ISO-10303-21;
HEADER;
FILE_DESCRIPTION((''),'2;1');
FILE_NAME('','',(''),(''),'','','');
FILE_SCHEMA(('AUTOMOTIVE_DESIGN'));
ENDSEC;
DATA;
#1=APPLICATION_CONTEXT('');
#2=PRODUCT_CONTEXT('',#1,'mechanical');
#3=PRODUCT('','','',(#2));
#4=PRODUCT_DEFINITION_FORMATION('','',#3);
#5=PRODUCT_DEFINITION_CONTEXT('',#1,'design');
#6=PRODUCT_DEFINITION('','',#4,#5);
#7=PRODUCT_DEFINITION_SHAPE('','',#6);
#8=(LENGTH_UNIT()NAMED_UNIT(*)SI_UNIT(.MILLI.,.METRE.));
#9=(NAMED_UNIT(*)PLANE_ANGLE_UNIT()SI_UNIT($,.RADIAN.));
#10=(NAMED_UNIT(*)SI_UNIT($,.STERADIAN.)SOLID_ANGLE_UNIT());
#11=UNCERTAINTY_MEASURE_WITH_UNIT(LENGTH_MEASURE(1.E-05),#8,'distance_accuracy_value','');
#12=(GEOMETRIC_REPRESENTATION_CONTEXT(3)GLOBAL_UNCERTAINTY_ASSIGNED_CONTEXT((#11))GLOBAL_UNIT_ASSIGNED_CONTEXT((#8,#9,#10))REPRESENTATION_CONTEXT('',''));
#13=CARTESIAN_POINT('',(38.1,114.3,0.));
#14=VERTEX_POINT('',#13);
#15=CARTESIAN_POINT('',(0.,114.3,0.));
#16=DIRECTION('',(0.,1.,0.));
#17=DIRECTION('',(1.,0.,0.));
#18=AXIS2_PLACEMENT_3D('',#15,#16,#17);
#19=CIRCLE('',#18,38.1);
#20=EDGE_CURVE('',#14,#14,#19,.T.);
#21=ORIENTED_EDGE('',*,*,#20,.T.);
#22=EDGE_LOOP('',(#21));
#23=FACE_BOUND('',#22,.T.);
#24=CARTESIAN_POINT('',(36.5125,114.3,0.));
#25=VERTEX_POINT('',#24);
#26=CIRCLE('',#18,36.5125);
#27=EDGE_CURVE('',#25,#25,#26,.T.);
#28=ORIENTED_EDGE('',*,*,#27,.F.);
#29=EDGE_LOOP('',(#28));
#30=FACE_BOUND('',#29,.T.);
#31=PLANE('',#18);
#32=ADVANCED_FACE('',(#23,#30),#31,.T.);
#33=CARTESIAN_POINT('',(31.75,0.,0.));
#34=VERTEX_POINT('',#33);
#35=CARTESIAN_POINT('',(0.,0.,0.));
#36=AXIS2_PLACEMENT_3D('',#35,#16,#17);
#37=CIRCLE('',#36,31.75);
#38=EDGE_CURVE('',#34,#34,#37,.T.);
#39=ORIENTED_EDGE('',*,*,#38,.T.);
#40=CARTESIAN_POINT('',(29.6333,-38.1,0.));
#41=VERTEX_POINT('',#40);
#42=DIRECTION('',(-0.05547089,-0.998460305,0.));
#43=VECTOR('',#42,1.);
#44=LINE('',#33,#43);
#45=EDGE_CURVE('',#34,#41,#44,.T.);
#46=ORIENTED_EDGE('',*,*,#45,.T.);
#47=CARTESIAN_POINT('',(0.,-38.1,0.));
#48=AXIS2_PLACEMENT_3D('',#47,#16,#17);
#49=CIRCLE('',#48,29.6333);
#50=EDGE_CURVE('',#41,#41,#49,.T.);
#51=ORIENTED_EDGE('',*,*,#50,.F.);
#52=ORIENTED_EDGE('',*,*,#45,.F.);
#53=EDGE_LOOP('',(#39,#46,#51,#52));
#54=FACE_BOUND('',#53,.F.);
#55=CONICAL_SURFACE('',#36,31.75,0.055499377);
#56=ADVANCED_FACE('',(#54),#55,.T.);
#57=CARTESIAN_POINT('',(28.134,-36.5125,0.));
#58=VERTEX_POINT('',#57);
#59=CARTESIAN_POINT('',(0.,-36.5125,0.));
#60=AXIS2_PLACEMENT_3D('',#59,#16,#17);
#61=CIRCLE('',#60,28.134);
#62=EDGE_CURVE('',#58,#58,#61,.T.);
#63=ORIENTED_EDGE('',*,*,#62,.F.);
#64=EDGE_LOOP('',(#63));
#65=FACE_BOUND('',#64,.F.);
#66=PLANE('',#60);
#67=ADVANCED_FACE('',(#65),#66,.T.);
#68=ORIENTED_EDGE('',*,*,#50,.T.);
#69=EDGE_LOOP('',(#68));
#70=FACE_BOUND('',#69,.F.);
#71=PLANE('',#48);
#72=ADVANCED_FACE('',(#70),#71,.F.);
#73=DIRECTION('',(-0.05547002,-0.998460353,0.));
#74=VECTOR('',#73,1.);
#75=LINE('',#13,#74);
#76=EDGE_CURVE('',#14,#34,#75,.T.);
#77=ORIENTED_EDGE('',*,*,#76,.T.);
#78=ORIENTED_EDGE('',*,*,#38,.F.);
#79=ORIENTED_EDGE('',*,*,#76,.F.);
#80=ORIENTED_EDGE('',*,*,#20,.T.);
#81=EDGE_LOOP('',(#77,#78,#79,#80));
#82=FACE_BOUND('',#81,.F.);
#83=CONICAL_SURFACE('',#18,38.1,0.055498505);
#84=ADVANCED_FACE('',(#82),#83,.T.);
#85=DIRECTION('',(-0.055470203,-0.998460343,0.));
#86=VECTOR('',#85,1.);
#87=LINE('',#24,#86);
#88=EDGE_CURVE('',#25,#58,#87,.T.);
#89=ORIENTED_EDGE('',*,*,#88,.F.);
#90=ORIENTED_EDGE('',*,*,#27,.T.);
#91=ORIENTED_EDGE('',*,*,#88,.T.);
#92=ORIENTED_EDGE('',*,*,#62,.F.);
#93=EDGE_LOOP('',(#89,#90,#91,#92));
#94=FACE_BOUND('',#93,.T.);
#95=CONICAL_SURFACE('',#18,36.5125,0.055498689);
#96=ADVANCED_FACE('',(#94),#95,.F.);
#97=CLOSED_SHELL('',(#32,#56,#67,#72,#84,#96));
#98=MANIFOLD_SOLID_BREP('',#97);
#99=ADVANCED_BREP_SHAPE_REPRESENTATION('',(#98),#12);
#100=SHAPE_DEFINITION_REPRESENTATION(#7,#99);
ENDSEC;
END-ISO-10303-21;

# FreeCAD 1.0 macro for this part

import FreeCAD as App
import Part
import Sketcher
Q = App.Units.Quantity


def add_polygon(sketch, points):
    """Adds a closed chain of lines whose ends are joined by coincident constraints."""
    first, n = sketch.GeometryCount, len(points)
    for a, b in zip(points, points[1:] + points[:1]):
        sketch.addGeometry(Part.LineSegment(App.Vector(*a, 0), App.Vector(*b, 0)), False)
    for i in range(n):
        sketch.addConstraint(Sketcher.Constraint("Coincident", first + i, 2, first + (i + 1) % n, 1))

doc = App.newDocument("Part")
body = doc.addObject("PartDesign::Body", "Body")

sketch1 = doc.addObject("Sketcher::SketchObject", "Sketch")
body.addObject(sketch1)
sketch1.AttachmentSupport = (doc.XY_Plane, [""])
sketch1.MapMode = "FlatFace"
add_polygon(sketch1, [(31.8, 0), (38.1, 114.3), (36.5, 114.3), (28.1, -36.5), (0, -36.5), (0, -38.1), (29.6, -38.1)])
sketch1.addConstraint([
    Sketcher.Constraint("Horizontal", 1),
    Sketcher.Constraint("Horizontal", 3),
    Sketcher.Constraint("Vertical", 4),
    Sketcher.Constraint("Horizontal", 5),
    Sketcher.Constraint("PointOnObject", 3, 2, -2),
    Sketcher.Constraint("PointOnObject", 6, 2, -1),
    Sketcher.Constraint("Parallel", 0, 2),
    Sketcher.Constraint("Parallel", 2, 6),
    Sketcher.Constraint("Equal", 1, 4),
    Sketcher.Constraint("DistanceX", -1, 1, 0, 2, Q("1.5 in")),
    Sketcher.Constraint("DistanceY", 4, 2, -1, 1, Q("1.5 in")),
    Sketcher.Constraint("DistanceX", 1, 2, 1, 1, Q("0.0625 in")),
    Sketcher.Constraint("DistanceX", -1, 1, 6, 2, Q("1.25 in")),
    Sketcher.Constraint("DistanceY", 4, 2, 1, 2, Q("6 in")),
])
revolution = doc.addObject("PartDesign::Revolution", "Revolution")
body.addObject(revolution)
revolution.Profile = sketch1
revolution.ReferenceAxis = (sketch1, ["V_Axis"])
revolution.Angle = 360

doc.recompute()
